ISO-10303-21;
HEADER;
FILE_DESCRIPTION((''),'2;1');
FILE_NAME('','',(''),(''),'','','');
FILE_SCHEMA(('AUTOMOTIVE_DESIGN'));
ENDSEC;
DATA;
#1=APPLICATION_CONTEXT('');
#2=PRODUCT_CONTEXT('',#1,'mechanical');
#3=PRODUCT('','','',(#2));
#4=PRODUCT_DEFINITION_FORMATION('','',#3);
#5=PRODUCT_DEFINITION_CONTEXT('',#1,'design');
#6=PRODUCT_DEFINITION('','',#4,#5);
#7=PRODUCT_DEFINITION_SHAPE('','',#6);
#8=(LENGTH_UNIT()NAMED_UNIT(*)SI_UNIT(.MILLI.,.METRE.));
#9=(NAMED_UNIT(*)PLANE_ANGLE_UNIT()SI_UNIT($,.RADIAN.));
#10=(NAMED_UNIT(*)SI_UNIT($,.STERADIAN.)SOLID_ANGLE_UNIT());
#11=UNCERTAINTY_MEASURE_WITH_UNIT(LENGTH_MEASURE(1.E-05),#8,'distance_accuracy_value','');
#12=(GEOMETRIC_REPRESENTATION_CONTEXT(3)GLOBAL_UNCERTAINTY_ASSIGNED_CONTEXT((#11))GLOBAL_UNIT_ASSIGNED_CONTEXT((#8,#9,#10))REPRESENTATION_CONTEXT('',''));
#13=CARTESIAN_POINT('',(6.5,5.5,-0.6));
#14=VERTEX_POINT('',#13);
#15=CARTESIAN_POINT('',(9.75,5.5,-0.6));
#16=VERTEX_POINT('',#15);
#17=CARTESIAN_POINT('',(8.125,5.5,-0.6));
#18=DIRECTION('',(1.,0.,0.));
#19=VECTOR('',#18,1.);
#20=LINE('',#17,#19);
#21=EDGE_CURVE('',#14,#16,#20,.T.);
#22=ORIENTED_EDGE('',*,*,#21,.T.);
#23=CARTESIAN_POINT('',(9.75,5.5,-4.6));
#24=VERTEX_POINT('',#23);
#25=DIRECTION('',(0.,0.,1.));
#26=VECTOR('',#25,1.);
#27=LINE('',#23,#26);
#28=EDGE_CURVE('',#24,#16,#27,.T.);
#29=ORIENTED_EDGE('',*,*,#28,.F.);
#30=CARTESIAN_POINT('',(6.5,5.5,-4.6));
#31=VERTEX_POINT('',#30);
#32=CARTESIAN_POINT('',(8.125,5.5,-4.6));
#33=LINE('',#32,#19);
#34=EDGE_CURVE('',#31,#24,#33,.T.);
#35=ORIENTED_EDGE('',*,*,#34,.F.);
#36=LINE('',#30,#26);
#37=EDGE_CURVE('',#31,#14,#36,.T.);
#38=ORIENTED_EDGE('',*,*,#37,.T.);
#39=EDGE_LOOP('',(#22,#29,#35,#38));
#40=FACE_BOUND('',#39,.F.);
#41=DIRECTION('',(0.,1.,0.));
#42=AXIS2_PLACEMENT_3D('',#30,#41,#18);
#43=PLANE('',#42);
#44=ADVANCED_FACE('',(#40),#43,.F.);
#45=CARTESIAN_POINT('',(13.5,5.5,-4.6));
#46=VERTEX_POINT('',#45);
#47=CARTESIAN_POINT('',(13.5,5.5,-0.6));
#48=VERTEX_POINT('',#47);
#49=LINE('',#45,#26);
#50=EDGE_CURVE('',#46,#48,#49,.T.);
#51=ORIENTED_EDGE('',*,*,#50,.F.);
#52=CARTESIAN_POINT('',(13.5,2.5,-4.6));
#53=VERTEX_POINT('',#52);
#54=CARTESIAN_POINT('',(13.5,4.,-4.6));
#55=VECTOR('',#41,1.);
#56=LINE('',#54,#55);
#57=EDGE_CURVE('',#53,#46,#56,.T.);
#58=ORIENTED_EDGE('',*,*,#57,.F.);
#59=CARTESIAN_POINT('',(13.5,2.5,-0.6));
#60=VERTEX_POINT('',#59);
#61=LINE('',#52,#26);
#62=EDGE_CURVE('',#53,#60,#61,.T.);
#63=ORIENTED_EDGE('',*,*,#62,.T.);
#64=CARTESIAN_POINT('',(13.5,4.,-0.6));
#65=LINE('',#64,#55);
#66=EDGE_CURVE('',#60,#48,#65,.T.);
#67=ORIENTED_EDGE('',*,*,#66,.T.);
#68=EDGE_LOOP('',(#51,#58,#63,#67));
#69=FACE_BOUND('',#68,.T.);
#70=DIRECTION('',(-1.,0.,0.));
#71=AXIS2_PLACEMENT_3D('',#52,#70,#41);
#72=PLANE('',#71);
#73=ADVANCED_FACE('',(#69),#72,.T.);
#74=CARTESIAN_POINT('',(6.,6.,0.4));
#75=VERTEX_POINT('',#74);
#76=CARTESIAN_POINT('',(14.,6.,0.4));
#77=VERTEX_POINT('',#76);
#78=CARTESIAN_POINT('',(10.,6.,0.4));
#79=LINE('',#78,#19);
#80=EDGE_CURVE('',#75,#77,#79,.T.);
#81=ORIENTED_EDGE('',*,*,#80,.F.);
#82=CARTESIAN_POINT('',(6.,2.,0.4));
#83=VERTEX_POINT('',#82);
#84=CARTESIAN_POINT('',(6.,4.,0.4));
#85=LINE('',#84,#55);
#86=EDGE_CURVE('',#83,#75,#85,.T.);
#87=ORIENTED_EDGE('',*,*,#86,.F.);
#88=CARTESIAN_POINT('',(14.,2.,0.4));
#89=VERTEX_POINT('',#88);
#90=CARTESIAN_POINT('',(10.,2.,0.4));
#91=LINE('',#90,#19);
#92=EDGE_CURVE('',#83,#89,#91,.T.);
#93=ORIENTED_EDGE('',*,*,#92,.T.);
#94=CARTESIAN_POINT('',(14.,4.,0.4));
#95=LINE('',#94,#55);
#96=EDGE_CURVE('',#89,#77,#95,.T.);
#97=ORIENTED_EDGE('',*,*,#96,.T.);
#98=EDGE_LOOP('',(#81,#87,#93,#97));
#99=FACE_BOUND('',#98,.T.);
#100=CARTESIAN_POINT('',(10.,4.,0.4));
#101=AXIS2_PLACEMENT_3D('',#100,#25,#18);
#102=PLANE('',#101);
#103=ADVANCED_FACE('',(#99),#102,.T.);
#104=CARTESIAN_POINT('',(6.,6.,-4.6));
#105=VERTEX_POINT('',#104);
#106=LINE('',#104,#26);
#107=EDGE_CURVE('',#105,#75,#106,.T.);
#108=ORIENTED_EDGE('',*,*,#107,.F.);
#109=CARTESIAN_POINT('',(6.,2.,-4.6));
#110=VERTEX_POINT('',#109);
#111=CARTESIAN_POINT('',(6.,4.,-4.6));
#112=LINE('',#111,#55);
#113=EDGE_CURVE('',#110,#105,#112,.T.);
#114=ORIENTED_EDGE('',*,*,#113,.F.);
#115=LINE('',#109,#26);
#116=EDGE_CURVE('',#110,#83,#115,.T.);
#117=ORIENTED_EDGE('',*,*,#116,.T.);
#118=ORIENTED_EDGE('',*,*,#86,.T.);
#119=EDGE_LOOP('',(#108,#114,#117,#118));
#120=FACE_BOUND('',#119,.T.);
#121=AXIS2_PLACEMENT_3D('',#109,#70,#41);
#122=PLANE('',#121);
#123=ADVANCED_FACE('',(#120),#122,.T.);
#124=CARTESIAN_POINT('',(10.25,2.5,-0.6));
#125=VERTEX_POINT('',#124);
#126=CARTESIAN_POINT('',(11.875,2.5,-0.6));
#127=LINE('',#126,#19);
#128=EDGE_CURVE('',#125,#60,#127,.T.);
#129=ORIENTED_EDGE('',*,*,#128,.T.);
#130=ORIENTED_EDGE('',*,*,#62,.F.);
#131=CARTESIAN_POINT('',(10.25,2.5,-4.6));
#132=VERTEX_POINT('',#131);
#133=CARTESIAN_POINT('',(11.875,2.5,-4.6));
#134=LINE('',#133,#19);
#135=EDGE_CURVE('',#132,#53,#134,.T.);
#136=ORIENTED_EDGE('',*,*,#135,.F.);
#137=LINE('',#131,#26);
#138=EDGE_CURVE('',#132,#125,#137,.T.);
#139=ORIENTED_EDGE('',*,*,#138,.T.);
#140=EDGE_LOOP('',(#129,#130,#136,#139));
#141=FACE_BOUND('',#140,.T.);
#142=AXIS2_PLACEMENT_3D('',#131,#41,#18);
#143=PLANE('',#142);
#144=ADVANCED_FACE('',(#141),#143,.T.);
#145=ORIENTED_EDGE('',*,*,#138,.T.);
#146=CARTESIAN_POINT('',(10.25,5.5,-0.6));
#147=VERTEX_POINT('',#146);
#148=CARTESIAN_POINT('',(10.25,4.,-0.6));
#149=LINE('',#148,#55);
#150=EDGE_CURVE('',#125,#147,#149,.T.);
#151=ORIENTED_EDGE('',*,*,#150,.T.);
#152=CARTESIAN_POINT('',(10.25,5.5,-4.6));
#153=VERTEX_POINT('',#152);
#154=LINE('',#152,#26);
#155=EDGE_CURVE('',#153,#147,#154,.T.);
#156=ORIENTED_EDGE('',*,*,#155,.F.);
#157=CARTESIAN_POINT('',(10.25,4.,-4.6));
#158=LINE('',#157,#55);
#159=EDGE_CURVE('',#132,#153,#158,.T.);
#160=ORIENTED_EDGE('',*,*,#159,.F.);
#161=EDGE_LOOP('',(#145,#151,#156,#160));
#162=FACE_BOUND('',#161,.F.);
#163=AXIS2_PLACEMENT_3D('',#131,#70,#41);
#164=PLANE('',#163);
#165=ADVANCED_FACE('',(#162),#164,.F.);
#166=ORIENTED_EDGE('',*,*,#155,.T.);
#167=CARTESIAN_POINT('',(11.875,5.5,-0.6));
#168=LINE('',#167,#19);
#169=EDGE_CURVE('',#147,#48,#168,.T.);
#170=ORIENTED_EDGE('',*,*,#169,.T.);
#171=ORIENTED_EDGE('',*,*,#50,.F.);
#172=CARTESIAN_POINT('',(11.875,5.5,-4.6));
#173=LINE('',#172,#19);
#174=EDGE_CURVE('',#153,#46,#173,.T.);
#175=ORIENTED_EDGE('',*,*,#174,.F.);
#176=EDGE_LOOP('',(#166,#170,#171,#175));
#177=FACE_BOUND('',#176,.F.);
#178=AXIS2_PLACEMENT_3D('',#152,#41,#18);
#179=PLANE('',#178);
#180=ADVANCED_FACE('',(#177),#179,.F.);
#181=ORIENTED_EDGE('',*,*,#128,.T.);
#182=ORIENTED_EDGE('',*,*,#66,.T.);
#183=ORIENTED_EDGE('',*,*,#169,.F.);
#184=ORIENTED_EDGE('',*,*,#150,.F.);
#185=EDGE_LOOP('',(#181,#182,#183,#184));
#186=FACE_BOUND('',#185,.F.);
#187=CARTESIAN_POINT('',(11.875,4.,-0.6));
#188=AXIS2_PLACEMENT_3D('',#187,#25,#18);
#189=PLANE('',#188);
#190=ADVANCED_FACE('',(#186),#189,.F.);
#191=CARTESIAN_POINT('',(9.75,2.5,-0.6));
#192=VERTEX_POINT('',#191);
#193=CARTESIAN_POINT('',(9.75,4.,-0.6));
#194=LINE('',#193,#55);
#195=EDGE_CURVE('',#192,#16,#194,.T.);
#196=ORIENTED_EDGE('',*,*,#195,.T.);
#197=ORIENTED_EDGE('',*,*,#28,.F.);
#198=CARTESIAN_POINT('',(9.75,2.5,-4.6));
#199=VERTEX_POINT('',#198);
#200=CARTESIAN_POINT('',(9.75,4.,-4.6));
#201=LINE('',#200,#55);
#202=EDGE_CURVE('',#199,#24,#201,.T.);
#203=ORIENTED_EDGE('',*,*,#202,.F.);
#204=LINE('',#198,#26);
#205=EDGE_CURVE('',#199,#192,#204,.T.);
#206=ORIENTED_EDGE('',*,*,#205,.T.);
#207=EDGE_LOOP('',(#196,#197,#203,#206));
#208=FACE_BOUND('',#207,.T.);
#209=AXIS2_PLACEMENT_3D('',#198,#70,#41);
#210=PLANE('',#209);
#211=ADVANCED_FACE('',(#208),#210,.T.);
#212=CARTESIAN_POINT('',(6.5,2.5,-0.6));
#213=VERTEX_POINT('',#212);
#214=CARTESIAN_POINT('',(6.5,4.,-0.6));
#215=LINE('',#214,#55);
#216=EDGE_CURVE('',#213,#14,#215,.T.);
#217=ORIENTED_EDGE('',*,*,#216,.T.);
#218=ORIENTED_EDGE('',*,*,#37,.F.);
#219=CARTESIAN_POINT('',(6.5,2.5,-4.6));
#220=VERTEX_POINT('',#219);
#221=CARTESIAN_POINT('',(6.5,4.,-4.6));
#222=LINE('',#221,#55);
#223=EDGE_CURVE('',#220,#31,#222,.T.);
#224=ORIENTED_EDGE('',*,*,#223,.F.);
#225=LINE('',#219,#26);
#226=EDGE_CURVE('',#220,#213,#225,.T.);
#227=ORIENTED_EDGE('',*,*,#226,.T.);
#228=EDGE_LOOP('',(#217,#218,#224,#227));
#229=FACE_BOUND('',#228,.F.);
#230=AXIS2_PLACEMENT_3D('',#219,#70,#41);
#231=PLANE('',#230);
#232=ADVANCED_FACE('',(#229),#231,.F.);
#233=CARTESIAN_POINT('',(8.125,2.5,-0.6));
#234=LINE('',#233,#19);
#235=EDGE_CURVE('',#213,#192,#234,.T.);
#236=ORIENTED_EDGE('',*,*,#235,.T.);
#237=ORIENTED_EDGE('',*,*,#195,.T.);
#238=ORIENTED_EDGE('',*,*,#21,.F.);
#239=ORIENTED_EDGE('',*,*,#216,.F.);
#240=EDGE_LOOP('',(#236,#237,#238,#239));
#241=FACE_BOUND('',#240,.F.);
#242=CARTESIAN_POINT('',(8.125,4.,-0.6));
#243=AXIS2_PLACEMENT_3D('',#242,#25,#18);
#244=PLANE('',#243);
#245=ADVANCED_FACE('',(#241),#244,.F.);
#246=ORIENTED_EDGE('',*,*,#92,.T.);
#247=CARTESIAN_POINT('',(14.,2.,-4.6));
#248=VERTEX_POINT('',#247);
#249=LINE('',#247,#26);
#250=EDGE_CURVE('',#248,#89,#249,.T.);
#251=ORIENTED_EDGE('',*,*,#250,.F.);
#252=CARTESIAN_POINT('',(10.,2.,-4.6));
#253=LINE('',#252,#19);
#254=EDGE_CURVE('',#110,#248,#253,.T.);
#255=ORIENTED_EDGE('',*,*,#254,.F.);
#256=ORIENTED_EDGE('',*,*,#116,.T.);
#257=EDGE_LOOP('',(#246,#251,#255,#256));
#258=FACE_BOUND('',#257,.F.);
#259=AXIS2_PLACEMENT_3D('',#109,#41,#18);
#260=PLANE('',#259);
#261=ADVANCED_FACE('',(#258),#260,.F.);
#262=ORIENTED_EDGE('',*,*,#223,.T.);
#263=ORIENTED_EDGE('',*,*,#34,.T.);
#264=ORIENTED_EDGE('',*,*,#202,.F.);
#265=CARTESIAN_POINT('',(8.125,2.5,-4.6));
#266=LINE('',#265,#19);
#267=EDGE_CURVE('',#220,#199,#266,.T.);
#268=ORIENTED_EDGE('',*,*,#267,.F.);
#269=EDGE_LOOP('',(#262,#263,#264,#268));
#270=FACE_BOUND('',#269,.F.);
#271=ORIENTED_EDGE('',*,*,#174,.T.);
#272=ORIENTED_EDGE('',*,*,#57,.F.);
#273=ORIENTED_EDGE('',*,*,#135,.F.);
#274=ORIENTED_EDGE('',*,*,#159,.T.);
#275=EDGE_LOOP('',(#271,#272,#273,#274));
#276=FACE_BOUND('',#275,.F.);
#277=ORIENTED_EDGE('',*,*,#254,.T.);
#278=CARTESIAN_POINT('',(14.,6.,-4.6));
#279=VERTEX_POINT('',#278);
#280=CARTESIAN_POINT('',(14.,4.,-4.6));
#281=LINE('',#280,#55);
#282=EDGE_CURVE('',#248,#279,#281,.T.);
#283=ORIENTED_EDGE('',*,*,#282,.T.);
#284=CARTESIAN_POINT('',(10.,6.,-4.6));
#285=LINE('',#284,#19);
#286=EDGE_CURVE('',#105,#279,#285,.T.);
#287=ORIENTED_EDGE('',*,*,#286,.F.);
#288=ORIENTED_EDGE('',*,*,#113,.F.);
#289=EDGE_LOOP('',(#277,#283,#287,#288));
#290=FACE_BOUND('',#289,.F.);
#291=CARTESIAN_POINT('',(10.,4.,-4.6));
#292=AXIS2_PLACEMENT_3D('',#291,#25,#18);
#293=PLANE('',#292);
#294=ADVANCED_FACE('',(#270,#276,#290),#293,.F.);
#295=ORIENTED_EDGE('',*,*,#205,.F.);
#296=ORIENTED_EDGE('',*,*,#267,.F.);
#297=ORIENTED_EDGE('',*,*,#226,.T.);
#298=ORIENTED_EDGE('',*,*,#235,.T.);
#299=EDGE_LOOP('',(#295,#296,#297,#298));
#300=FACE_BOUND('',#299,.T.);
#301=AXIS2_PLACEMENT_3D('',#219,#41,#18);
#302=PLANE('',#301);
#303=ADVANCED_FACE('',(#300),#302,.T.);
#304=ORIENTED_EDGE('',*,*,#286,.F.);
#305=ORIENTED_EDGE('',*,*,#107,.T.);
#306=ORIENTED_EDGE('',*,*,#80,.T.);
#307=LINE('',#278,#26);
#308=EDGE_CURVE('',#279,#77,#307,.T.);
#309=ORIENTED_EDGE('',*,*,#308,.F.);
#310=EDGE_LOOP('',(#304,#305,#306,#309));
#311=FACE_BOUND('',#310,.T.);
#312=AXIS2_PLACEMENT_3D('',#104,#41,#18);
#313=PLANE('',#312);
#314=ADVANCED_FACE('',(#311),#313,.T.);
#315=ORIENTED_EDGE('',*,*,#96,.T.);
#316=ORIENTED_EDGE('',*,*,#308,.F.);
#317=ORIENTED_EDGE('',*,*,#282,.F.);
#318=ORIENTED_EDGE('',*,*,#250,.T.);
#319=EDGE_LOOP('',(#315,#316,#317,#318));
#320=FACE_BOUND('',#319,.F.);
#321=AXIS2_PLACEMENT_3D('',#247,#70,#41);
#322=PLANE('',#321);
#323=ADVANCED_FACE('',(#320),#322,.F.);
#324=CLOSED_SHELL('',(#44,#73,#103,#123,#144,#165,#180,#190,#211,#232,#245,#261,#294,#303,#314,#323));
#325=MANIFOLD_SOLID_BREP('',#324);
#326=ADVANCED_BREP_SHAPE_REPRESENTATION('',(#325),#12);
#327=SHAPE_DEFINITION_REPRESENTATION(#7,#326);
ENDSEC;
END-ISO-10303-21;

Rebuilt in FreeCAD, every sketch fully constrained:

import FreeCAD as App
import Part
import Sketcher

V = App.Vector


def add_polygon(sketch, points):
    """Adds a closed chain of lines whose ends are joined by coincident constraints."""
    first, n = sketch.GeometryCount, len(points)
    for a, b in zip(points, points[1:] + points[:1]):
        sketch.addGeometry(Part.LineSegment(App.Vector(*a, 0), App.Vector(*b, 0)), False)
    for i in range(n):
        sketch.addConstraint(Sketcher.Constraint("Coincident", first + i, 2, first + (i + 1) % n, 1))

doc = App.newDocument("Part")
body = doc.addObject("PartDesign::Body", "Body")

sketch1 = doc.addObject("Sketcher::SketchObject", "Sketch")
body.addObject(sketch1)
sketch1.AttachmentSupport = (doc.XY_Plane, [""])
sketch1.MapMode = "FlatFace"
sketch1.AttachmentOffset = App.Placement(V(0, 0, -5), App.Rotation())
add_polygon(sketch1, [(10.2, 5.5), (10.2, 2.5), (13.5, 2.5), (13.5, 5.5)])
sketch1.addConstraint([
    Sketcher.Constraint("Vertical", 0),
    Sketcher.Constraint("Horizontal", 1),
    Sketcher.Constraint("Vertical", 2),
    Sketcher.Constraint("Horizontal", 3),
    Sketcher.Constraint("DistanceY", 0, 2, 0, 1, 3.0),
    Sketcher.Constraint("DistanceX", 1, 1, 1, 2, 3.25),
    Sketcher.Constraint("DistanceY", -1, 1, 0, 2, 2.5),
    Sketcher.Constraint("DistanceX", -1, 1, 1, 2, 13.5),
])
pad1 = doc.addObject("PartDesign::Pad", "Pad")
body.addObject(pad1)
pad1.Profile = sketch1
pad1.Length = 4
body2 = doc.addObject("PartDesign::Body", "Body001")

sketch2 = doc.addObject("Sketcher::SketchObject", "Sketch001")
body2.addObject(sketch2)
sketch2.AttachmentSupport = (doc.getObject("XY_Plane001"), [""])
sketch2.MapMode = "FlatFace"
sketch2.AttachmentOffset = App.Placement(V(0, 0, -5), App.Rotation())
add_polygon(sketch2, [(6.5, 5.5), (6.5, 2.5), (9.8, 2.5), (9.8, 5.5)])
sketch2.addConstraint([
    Sketcher.Constraint("Vertical", 0),
    Sketcher.Constraint("Horizontal", 1),
    Sketcher.Constraint("Vertical", 2),
    Sketcher.Constraint("Horizontal", 3),
    Sketcher.Constraint("DistanceY", 0, 2, 0, 1, 3.0),
    Sketcher.Constraint("DistanceX", 1, 1, 1, 2, 3.25),
    Sketcher.Constraint("DistanceX", -1, 1, 0, 2, 6.5),
    Sketcher.Constraint("DistanceY", -1, 1, 0, 2, 2.5),
])
pad2 = doc.addObject("PartDesign::Pad", "Pad001")
body2.addObject(pad2)
pad2.Profile = sketch2
pad2.Length = 4
body3 = doc.addObject("PartDesign::Body", "Body002")

sketch3 = doc.addObject("Sketcher::SketchObject", "Sketch002")
body3.addObject(sketch3)
sketch3.AttachmentSupport = (doc.getObject("XY_Plane002"), [""])
sketch3.MapMode = "FlatFace"
sketch3.AttachmentOffset = App.Placement(V(0, 0, -5), App.Rotation())
add_polygon(sketch3, [(6, 6), (6, 2), (14, 2), (14, 6)])
sketch3.addConstraint([
    Sketcher.Constraint("Vertical", 0),
    Sketcher.Constraint("Horizontal", 1),
    Sketcher.Constraint("Vertical", 2),
    Sketcher.Constraint("Horizontal", 3),
    Sketcher.Constraint("DistanceX", 1, 1, 1, 2, 8.0),
    Sketcher.Constraint("DistanceY", 0, 2, 0, 1, 4.0),
    Sketcher.Constraint("DistanceX", -1, 1, 0, 2, 6.0),
    Sketcher.Constraint("DistanceY", -1, 1, 0, 2, 2.0),
])
pad3 = doc.addObject("PartDesign::Pad", "Pad002")
body3.addObject(pad3)
pad3.Profile = sketch3
pad3.Length = 5
doc.recompute()

boolean = doc.addObject("PartDesign::Boolean", "Boolean")
body3.addObject(boolean)
boolean.Type = "Cut"
boolean.addObjects([body2])
doc.recompute()

boolean2 = doc.addObject("PartDesign::Boolean", "Boolean001")
body3.addObject(boolean2)
boolean2.Type = "Cut"
boolean2.addObjects([body])
body4 = doc.addObject("PartDesign::Body", "Body003")
doc.recompute()

body3.Placement = App.Placement(V(0, 0, 0.4), App.Rotation(V(0, 0, 1), 0))
boolean3 = doc.addObject("PartDesign::Boolean", "Boolean002")
body4.addObject(boolean3)
boolean3.Type = "Fuse"
boolean3.addObjects([body3])

doc.recompute()
